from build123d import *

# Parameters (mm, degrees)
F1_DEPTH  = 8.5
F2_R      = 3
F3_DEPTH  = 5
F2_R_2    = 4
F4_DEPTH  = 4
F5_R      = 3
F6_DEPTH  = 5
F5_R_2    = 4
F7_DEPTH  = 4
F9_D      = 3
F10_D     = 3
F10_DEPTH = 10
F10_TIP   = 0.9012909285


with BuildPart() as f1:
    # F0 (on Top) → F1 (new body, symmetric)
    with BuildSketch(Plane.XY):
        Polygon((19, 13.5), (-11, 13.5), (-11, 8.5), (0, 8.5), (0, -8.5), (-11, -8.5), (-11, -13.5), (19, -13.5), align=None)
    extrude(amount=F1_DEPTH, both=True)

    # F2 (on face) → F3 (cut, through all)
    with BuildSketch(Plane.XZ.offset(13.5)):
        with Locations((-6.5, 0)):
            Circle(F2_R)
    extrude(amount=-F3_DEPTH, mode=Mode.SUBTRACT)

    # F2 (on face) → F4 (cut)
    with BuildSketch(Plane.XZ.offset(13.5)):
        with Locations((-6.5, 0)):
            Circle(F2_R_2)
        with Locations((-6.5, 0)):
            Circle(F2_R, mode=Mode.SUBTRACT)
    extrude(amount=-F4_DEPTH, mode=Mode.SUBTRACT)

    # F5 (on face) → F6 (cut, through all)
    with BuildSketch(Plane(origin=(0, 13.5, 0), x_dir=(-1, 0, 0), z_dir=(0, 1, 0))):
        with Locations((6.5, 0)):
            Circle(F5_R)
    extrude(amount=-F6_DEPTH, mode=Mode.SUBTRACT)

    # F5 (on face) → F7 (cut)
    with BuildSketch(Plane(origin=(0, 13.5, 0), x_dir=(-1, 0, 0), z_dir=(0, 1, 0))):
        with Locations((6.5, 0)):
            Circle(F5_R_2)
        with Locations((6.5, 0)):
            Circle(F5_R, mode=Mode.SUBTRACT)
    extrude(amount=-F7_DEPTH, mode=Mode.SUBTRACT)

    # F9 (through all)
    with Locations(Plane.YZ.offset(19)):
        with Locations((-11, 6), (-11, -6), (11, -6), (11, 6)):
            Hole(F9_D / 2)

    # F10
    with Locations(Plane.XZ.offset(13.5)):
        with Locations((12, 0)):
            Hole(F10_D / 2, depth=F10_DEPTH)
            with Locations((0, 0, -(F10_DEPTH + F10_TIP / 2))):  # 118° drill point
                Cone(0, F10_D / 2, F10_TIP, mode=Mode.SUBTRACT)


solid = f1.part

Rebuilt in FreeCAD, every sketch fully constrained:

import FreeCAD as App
import Part
import Sketcher

doc = App.newDocument("Part")
body = doc.addObject("PartDesign::Body", "Body")

# Sketch on XY plane
sketch1 = body.newObject("Sketcher::SketchObject", "Sketch")
sketch1.AttachmentSupport = (doc.getObject("XY_Plane"), [""])
sketch1.MapMode = "FlatFace"
sketch1.addGeometry([
    Part.LineSegment(App.Vector(19, 14, 0), App.Vector(-11, 14, 0)),  # 0
    Part.LineSegment(App.Vector(-11, 14, 0), App.Vector(-11, 8, 0)),  # 1
    Part.LineSegment(App.Vector(-11, 8, 0), App.Vector(0, 8, 0)),  # 2
    Part.LineSegment(App.Vector(0, 8, 0), App.Vector(0, -8, 0)),  # 3
    Part.LineSegment(App.Vector(0, -8, 0), App.Vector(-11, -8, 0)),  # 4
    Part.LineSegment(App.Vector(-11, -8, 0), App.Vector(-11, -14, 0)),  # 5
    Part.LineSegment(App.Vector(-11, -14, 0), App.Vector(19, -14, 0)),  # 6
    Part.LineSegment(App.Vector(19, -14, 0), App.Vector(19, 14, 0)),  # 7
], False)
sketch1.addConstraint([
    Sketcher.Constraint("Coincident", 0, 2, 1, 1),
    Sketcher.Constraint("Coincident", 1, 2, 2, 1),
    Sketcher.Constraint("Coincident", 2, 2, 3, 1),
    Sketcher.Constraint("Coincident", 3, 2, 4, 1),
    Sketcher.Constraint("Coincident", 4, 2, 5, 1),
    Sketcher.Constraint("Coincident", 5, 2, 6, 1),
    Sketcher.Constraint("Coincident", 6, 2, 7, 1),
    Sketcher.Constraint("Coincident", 7, 2, 0, 1),
    Sketcher.Constraint("Horizontal", 0),
    Sketcher.Constraint("Vertical", 1),
    Sketcher.Constraint("Horizontal", 2),
    Sketcher.Constraint("Vertical", 3),
    Sketcher.Constraint("Horizontal", 4),
    Sketcher.Constraint("Vertical", 5),
    Sketcher.Constraint("Horizontal", 6),
    Sketcher.Constraint("Vertical", 7),
    Sketcher.Constraint("Symmetric", 2, 2, 3, 2, -1, 1),
    Sketcher.Constraint("Symmetric", 0, 2, 5, 2, -1),
    Sketcher.Constraint("DistanceX", 0, 2, 0, 1, 30.0),
    Sketcher.Constraint("DistanceX", 2, 1, 2, 2, 11.0),
    Sketcher.Constraint("DistanceY", 1, 2, 1, 1, 5.0),
    Sketcher.Constraint("DistanceY", 3, 2, 3, 1, 17.0),
])
pad1 = body.newObject("PartDesign::Pad", "Pad")
pad1.Profile = sketch1
pad1.Length = 17
pad1.Midplane = True

# Sketch on XZ plane
sketch2 = body.newObject("Sketcher::SketchObject", "Sketch001")
sketch2.AttachmentSupport = (doc.getObject("XZ_Plane"), [""])
sketch2.MapMode = "FlatFace"
sketch2.AttachmentOffset = App.Placement(App.Vector(0, 0, 13.5), App.Rotation())
sketch2.addGeometry(Part.Circle(App.Vector(-6.5, 0, 0), App.Vector(0, 0, 1), 3), False)
sketch2.addConstraint([
    Sketcher.Constraint("PointOnObject", 0, 3, -1),
    Sketcher.Constraint("Diameter", 0, 6.0),
    Sketcher.Constraint("DistanceX", 0, 3, -1, 1, 6.5),
])
pocket1 = body.newObject("PartDesign::Pocket", "Pocket")
pocket1.Profile = sketch2
pocket1.Length = 5

# Sketch on XZ plane
sketch3 = body.newObject("Sketcher::SketchObject", "Sketch002")
sketch3.AttachmentSupport = (doc.getObject("XZ_Plane"), [""])
sketch3.MapMode = "FlatFace"
sketch3.AttachmentOffset = App.Placement(App.Vector(0, 0, 13.5), App.Rotation())
sketch3.addGeometry([
    Part.Circle(App.Vector(-6.5, 0, 0), App.Vector(0, 0, 1), 4),
    Part.Circle(App.Vector(-6.5, 0, 0), App.Vector(0, 0, 1), 3),
], False)
sketch3.addConstraint([
    Sketcher.Constraint("Coincident", 1, 3, 0, 3),
    Sketcher.Constraint("PointOnObject", 0, 3, -1),
    Sketcher.Constraint("Diameter", 0, 8.0),
    Sketcher.Constraint("Diameter", 1, 6.0),
    Sketcher.Constraint("DistanceX", 0, 3, -1, 1, 6.5),
])
pocket2 = body.newObject("PartDesign::Pocket", "Pocket001")
pocket2.Profile = sketch3
pocket2.Length = 4

# Sketch on XZ plane
sketch4 = body.newObject("Sketcher::SketchObject", "Sketch003")
sketch4.AttachmentSupport = (doc.getObject("XZ_Plane"), [""])
sketch4.MapMode = "FlatFace"
sketch4.AttachmentOffset = App.Placement(App.Vector(0, 0, -13.5), App.Rotation())
sketch4.addGeometry(Part.Circle(App.Vector(-6.5, 0, 0), App.Vector(0, 0, 1), 3), False)
sketch4.addConstraint([
    Sketcher.Constraint("PointOnObject", 0, 3, -1),
    Sketcher.Constraint("Diameter", 0, 6.0),
    Sketcher.Constraint("DistanceX", 0, 3, -1, 1, 6.5),
])
pocket3 = body.newObject("PartDesign::Pocket", "Pocket002")
pocket3.Profile = sketch4
pocket3.Type = "ThroughAll"
pocket3.Reversed = True

# Sketch on XZ plane
sketch5 = body.newObject("Sketcher::SketchObject", "Sketch004")
sketch5.AttachmentSupport = (doc.getObject("XZ_Plane"), [""])
sketch5.MapMode = "FlatFace"
sketch5.AttachmentOffset = App.Placement(App.Vector(0, 0, -13.5), App.Rotation())
sketch5.addGeometry([
    Part.Circle(App.Vector(-6.5, 0, 0), App.Vector(0, 0, 1), 4),
    Part.Circle(App.Vector(-6.5, 0, 0), App.Vector(0, 0, 1), 3),
], False)
sketch5.addConstraint([
    Sketcher.Constraint("Coincident", 1, 3, 0, 3),
    Sketcher.Constraint("PointOnObject", 0, 3, -1),
    Sketcher.Constraint("Diameter", 0, 8.0),
    Sketcher.Constraint("Diameter", 1, 6.0),
    Sketcher.Constraint("DistanceX", 0, 3, -1, 1, 6.5),
])
pocket4 = body.newObject("PartDesign::Pocket", "Pocket003")
pocket4.Profile = sketch5
pocket4.Length = 4
pocket4.Reversed = True

# Sketch on YZ plane
sketch6 = body.newObject("Sketcher::SketchObject", "Sketch005")
sketch6.AttachmentSupport = (doc.getObject("YZ_Plane"), [""])
sketch6.MapMode = "FlatFace"
sketch6.AttachmentOffset = App.Placement(App.Vector(0, 0, 19), App.Rotation())
sketch6.addGeometry([
    Part.Circle(App.Vector(-11, 6, 0), App.Vector(0, 0, 1), 1.5),
    Part.Circle(App.Vector(-11, -6, 0), App.Vector(0, 0, 1), 1.5),
    Part.Circle(App.Vector(11, -6, 0), App.Vector(0, 0, 1), 1.5),
    Part.Circle(App.Vector(11, 6, 0), App.Vector(0, 0, 1), 1.5),
], False)
sketch6.addConstraint([
    Sketcher.Constraint("Equal", 0, 1),
    Sketcher.Constraint("Equal", 1, 2),
    Sketcher.Constraint("Equal", 2, 3),
    Sketcher.Constraint("Symmetric", 0, 3, 2, 3, -1, 1),
    Sketcher.Constraint("Symmetric", 1, 3, 3, 3, -1, 1),
    Sketcher.Constraint("Symmetric", 1, 3, 2, 3, -2),
    Sketcher.Constraint("Diameter", 0, 3.0),
    Sketcher.Constraint("DistanceX", 0, 3, -1, 1, 11.0),
    Sketcher.Constraint("DistanceY", -1, 1, 0, 3, 6.0),
])
doc.recompute()
hole = body.newObject("PartDesign::Hole", "Hole")
hole.Profile = sketch6
hole.ThreadType = "None"
hole.Diameter = 3
hole.DepthType = "ThroughAll"

# Sketch on XZ plane
sketch7 = body.newObject("Sketcher::SketchObject", "Sketch006")
sketch7.AttachmentSupport = (doc.getObject("XZ_Plane"), [""])
sketch7.MapMode = "FlatFace"
sketch7.AttachmentOffset = App.Placement(App.Vector(0, 0, 13.5), App.Rotation())
sketch7.addGeometry(Part.Circle(App.Vector(12, 0, 0), App.Vector(0, 0, 1), 1.5), False)
sketch7.addConstraint([
    Sketcher.Constraint("PointOnObject", 0, 3, -1),
    Sketcher.Constraint("Diameter", 0, 3.0),
    Sketcher.Constraint("DistanceX", -1, 1, 0, 3, 12.0),
])
doc.recompute()
hole2 = body.newObject("PartDesign::Hole", "Hole001")
hole2.Profile = sketch7
hole2.ThreadType = "None"
hole2.Diameter = 3
hole2.DepthType = "Dimension"
hole2.Depth = 10
hole2.DrillPoint = "Angled"
hole2.DrillPointAngle = 118

doc.recompute()
